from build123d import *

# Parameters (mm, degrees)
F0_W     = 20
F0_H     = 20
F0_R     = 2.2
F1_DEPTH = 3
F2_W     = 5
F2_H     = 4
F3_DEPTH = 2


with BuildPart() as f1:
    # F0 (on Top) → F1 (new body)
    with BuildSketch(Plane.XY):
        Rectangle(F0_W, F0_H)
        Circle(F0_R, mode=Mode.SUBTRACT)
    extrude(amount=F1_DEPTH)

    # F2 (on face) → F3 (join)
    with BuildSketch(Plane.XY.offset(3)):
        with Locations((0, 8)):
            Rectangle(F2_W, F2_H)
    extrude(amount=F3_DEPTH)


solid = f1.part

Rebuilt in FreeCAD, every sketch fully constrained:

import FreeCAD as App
import Part
import Sketcher
Q = App.Units.Quantity


def add_polygon(sketch, points):
    """Adds a closed chain of lines whose ends are joined by coincident constraints."""
    first, n = sketch.GeometryCount, len(points)
    for a, b in zip(points, points[1:] + points[:1]):
        sketch.addGeometry(Part.LineSegment(App.Vector(*a, 0), App.Vector(*b, 0)), False)
    for i in range(n):
        sketch.addConstraint(Sketcher.Constraint("Coincident", first + i, 2, first + (i + 1) % n, 1))

doc = App.newDocument("Part")
params = doc.addObject("Spreadsheet::Sheet", "Params")
for row, (alias, value) in enumerate([
    ("sketch1_diameter", "4.4 mm"),
    ("sketch1_width", "20 mm"),
    ("pad1_length", "3 mm"),
    ("sketch2_width", "5 mm"),
    ("sketch2_height", "4 mm"),
    ("pad2_length", "2 mm"),
], start=1):
    params.set(f"A{row}", alias)
    params.set(f"B{row}", "=" + value)
    params.setAlias(f"B{row}", alias)

body = doc.addObject("PartDesign::Body", "Body")

sketch1 = body.newObject("Sketcher::SketchObject", "Sketch")
sketch1.AttachmentSupport = (doc.getObject("XY_Plane"), [""])
sketch1.MapMode = "FlatFace"
add_polygon(sketch1, [(-10, 10), (-10, -10), (10, -10), (10, 10)])
sketch1.addGeometry(Part.Circle(App.Vector(0, 0, 0), App.Vector(0, 0, 1), 2.2), False)
sketch1.addConstraint(Sketcher.Constraint("Vertical", 0))
sketch1.addConstraint(Sketcher.Constraint("Horizontal", 1))
sketch1.addConstraint(Sketcher.Constraint("Vertical", 2))
sketch1.addConstraint(Sketcher.Constraint("Horizontal", 3))
sketch1.addConstraint(Sketcher.Constraint("Coincident", 4, 3, -1, 1))
sketch1.addConstraint(Sketcher.Constraint("Symmetric", 0, 2, 2, 2, -1, 1))
sketch1.addConstraint(Sketcher.Constraint("Equal", 3, 0))
sketch1.addConstraint(Sketcher.Constraint("Diameter", 4, Q("4.4 mm")))
sketch1.addConstraint(Sketcher.Constraint("DistanceX", 1, 1, 1, 2, Q("20 mm")))
sketch1.setExpression("Constraints[11]", "Params.sketch1_diameter")
sketch1.setExpression("Constraints[12]", "Params.sketch1_width")
pad1 = body.newObject("PartDesign::Pad", "Pad")
pad1.Profile = sketch1
pad1.setExpression("Length", "Params.pad1_length")

sketch2 = body.newObject("Sketcher::SketchObject", "Sketch001")
sketch2.AttachmentSupport = (doc.getObject("XY_Plane"), [""])
sketch2.MapMode = "FlatFace"
sketch2.AttachmentOffset = App.Placement(App.Vector(0, 0, 3), App.Rotation())
add_polygon(sketch2, [(-2.5, 10), (-2.5, 6), (2.5, 6), (2.5, 10)])
sketch2.addConstraint(Sketcher.Constraint("Vertical", 0))
sketch2.addConstraint(Sketcher.Constraint("Horizontal", 1))
sketch2.addConstraint(Sketcher.Constraint("Vertical", 2))
sketch2.addConstraint(Sketcher.Constraint("Horizontal", 3))
sketch2.addConstraint(Sketcher.Constraint("DistanceX", 1, 1, 1, 2, Q("5 mm")))
sketch2.addConstraint(Sketcher.Constraint("DistanceY", 0, 2, 0, 1, Q("4 mm")))
sketch2.addConstraint(Sketcher.Constraint("DistanceY", -1, 1, 0, 2, Q("6 mm")))
sketch2.addConstraint(Sketcher.Constraint("DistanceX", 0, 2, -1, 1, Q("2.5 mm")))
sketch2.setExpression("Constraints[8]", "Params.sketch2_width")
sketch2.setExpression("Constraints[9]", "Params.sketch2_height")
pad2 = body.newObject("PartDesign::Pad", "Pad001")
pad2.Profile = sketch2
pad2.setExpression("Length", "Params.pad2_length")

doc.recompute()
